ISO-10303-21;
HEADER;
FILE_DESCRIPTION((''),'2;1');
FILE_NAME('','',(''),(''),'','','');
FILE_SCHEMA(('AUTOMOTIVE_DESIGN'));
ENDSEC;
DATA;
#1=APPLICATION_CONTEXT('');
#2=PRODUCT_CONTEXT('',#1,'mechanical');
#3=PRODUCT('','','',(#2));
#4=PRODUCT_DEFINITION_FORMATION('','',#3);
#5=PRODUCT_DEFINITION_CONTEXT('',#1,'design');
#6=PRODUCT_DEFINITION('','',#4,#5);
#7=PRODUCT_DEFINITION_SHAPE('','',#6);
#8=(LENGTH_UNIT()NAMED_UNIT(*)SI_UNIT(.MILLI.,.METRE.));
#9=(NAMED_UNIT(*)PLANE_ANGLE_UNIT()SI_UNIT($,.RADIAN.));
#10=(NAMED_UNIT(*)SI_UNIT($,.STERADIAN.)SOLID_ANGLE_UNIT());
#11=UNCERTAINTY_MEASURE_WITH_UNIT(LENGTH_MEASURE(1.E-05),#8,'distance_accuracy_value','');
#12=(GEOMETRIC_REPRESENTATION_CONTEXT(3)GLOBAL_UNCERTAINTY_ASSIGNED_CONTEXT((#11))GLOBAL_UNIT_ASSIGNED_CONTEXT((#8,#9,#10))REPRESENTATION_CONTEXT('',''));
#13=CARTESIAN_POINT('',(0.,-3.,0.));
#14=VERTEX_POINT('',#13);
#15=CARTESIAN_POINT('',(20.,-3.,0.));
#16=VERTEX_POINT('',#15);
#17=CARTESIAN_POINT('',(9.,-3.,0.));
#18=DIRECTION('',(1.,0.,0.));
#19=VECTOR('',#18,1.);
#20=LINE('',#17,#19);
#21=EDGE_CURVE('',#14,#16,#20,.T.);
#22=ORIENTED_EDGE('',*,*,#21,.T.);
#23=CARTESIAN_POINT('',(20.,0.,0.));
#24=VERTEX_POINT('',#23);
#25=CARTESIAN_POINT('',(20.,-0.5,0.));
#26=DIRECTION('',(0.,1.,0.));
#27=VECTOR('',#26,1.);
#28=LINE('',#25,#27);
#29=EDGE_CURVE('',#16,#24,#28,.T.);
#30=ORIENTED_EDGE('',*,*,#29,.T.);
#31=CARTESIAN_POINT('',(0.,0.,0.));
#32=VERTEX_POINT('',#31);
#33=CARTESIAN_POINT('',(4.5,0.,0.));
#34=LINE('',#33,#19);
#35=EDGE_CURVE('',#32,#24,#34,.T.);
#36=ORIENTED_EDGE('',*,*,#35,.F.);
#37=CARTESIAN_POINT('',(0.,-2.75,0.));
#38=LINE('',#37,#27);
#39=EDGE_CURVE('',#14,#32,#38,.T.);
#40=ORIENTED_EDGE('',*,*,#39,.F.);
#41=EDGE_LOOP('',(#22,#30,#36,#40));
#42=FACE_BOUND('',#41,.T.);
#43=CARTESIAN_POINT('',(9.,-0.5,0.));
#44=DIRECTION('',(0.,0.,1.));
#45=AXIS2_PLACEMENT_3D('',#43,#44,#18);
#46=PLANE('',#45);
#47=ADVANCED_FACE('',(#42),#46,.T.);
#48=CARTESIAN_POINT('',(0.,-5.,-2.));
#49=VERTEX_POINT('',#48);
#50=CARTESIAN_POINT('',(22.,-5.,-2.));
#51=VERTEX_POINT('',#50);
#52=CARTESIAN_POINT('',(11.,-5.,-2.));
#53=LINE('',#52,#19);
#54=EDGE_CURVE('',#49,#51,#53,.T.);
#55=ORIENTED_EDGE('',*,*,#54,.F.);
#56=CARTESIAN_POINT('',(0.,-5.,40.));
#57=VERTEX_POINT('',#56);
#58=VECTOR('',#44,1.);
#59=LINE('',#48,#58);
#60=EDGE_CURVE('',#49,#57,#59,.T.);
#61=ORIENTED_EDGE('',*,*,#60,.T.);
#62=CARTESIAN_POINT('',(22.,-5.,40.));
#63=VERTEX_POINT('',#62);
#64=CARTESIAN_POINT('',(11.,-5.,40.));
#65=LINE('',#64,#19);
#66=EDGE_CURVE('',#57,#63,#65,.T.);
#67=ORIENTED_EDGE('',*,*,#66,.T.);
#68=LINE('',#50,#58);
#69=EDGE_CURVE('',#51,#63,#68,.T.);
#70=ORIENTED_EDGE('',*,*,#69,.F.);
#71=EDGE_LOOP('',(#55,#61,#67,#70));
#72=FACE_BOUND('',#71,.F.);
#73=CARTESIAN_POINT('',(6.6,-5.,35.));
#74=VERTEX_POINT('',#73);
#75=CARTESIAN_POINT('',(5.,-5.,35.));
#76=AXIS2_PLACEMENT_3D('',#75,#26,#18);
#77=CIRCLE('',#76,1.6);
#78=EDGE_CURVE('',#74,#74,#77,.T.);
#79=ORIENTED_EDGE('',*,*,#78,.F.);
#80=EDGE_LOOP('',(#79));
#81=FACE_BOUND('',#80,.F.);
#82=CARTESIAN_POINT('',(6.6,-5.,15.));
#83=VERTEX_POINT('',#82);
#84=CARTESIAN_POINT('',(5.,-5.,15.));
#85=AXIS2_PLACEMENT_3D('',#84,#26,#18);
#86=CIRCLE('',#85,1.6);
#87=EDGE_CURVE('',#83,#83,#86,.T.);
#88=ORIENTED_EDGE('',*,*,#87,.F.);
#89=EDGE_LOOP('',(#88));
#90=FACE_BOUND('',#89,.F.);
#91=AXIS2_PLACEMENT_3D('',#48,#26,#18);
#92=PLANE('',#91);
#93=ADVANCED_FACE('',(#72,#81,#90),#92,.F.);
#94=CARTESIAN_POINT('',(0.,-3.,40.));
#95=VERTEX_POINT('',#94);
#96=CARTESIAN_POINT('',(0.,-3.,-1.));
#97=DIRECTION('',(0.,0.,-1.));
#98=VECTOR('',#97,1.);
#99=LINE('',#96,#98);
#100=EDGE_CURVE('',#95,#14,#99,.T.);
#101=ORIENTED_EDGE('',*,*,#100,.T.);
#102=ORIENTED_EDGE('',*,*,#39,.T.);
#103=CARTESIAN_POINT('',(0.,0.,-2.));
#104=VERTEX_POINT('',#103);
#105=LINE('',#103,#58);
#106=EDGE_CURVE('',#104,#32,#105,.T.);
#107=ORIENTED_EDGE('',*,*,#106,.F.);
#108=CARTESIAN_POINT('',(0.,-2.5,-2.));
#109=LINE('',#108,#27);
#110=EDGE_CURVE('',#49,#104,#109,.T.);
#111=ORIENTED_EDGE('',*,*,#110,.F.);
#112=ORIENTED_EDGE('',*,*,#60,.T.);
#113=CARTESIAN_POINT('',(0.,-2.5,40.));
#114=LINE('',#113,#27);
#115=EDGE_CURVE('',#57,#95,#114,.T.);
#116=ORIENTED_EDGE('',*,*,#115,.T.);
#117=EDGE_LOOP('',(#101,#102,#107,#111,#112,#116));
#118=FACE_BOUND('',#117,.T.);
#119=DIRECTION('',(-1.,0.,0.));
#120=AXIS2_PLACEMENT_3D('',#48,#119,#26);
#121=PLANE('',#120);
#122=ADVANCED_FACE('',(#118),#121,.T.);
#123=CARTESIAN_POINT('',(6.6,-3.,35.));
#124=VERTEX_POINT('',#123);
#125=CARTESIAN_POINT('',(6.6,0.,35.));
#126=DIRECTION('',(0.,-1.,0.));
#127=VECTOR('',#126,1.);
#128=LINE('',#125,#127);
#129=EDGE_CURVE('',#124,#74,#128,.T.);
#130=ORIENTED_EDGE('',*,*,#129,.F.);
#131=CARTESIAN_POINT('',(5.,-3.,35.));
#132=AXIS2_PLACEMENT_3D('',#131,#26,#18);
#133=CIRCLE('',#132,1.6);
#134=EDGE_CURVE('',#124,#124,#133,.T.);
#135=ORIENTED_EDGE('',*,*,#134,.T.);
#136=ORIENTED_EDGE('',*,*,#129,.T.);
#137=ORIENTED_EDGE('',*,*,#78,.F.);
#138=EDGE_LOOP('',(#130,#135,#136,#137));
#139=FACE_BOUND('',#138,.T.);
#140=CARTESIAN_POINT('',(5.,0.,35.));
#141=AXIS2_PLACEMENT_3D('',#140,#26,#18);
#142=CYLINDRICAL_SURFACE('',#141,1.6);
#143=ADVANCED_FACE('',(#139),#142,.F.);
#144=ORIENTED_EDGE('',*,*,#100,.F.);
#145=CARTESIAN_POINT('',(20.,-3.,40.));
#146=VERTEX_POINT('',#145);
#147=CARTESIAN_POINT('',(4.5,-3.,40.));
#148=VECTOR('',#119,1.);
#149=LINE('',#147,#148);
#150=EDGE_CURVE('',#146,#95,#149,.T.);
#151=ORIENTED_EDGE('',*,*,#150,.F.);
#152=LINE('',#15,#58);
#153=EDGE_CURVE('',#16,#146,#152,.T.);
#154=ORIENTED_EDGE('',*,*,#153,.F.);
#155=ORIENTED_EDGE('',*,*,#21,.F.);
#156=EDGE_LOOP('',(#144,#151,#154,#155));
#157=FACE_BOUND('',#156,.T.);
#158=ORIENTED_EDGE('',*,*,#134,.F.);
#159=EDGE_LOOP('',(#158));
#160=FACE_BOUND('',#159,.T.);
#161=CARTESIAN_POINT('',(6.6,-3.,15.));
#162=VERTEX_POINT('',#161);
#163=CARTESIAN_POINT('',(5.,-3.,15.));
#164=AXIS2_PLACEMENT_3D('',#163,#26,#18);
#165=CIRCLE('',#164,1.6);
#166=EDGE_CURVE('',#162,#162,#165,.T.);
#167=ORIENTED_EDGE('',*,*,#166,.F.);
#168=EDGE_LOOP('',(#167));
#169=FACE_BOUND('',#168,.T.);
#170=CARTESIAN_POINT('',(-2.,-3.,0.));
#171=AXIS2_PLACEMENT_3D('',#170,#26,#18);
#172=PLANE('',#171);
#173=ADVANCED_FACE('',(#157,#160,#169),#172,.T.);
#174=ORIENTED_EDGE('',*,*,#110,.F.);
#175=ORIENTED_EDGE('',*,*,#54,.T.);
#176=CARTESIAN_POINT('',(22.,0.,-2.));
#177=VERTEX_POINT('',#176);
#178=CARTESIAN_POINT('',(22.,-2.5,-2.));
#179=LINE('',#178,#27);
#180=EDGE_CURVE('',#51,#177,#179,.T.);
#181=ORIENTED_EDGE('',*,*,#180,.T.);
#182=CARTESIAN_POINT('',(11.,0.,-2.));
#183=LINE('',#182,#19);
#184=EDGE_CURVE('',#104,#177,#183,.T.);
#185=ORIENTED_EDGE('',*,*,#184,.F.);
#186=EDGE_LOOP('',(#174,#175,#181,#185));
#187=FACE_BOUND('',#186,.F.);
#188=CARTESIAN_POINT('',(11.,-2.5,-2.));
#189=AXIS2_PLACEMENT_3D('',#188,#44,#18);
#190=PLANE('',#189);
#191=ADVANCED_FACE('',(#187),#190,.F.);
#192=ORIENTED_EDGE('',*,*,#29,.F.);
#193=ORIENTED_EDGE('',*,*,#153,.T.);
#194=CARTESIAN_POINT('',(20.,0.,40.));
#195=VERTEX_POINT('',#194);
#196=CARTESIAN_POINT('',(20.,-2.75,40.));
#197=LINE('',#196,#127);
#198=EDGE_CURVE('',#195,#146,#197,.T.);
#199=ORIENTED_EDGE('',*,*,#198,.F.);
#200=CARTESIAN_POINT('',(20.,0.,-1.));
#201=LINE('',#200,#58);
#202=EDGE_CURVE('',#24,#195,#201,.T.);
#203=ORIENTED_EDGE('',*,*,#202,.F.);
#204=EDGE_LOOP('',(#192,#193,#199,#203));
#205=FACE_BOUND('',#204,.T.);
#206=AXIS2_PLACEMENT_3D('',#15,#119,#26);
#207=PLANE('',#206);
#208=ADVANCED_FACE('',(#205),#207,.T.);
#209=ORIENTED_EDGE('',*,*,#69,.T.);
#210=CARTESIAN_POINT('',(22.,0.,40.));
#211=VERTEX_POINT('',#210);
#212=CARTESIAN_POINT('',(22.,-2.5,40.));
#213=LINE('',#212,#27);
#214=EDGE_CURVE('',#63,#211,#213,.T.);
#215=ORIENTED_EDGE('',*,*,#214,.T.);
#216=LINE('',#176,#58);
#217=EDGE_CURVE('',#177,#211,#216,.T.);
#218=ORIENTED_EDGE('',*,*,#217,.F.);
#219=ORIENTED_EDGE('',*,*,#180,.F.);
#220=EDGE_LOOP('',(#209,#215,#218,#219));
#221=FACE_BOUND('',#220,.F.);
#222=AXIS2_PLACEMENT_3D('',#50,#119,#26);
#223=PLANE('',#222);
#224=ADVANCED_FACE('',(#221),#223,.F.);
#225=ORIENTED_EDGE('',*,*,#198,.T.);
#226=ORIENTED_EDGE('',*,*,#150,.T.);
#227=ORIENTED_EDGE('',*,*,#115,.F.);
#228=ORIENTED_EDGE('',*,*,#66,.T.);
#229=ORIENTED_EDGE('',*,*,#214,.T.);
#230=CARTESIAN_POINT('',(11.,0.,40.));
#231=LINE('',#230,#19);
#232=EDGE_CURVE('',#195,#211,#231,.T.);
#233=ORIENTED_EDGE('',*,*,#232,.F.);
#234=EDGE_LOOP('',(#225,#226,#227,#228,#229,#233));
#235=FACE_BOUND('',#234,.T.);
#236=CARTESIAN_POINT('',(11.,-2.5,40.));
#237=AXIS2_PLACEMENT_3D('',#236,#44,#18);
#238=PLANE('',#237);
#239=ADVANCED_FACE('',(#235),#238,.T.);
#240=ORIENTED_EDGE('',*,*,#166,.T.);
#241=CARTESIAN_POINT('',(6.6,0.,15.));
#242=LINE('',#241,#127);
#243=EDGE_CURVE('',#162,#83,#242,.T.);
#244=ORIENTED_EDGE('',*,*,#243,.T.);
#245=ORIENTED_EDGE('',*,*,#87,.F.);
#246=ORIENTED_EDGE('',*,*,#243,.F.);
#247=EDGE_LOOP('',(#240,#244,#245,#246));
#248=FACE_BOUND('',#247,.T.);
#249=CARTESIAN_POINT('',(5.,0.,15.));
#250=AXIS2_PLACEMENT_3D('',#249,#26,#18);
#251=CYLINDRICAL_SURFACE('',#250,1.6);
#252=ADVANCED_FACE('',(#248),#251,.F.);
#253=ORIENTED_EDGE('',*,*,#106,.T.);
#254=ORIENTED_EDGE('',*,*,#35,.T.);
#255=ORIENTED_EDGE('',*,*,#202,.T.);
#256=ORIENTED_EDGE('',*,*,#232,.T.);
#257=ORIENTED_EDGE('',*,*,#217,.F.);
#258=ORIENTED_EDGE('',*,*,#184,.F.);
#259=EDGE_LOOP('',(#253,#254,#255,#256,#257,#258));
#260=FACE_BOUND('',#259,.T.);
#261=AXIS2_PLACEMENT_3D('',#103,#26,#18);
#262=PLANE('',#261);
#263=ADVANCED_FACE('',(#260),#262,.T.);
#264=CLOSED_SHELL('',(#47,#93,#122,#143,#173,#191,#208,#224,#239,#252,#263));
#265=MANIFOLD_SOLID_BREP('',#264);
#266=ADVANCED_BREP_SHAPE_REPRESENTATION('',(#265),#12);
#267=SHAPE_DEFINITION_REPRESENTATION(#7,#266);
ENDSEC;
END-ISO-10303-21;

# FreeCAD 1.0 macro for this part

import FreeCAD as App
import Part
import Sketcher

V = App.Vector
Q = App.Units.Quantity


def add_polygon(sketch, points):
    """Adds a closed chain of lines whose ends are joined by coincident constraints."""
    first, n = sketch.GeometryCount, len(points)
    for a, b in zip(points, points[1:] + points[:1]):
        sketch.addGeometry(Part.LineSegment(App.Vector(*a, 0), App.Vector(*b, 0)), False)
    for i in range(n):
        sketch.addConstraint(Sketcher.Constraint("Coincident", first + i, 2, first + (i + 1) % n, 1))

doc = App.newDocument("Part")
body = doc.addObject("PartDesign::Body", "Body")

# Sketch on XZ plane
sketch1 = body.newObject("Sketcher::SketchObject", "Sketch")
sketch1.AttachmentSupport = (doc.getObject("XZ_Plane"), [""])
sketch1.MapMode = "FlatFace"
sketch1.addGeometry(Part.Circle(V(5, 10, 0), V(0, 0, 1), 1.6), False)
sketch1.addConstraint([
    Sketcher.Constraint("Diameter", 0, Q("3.2 mm")),
    Sketcher.Constraint("DistanceX", -1, 1, 0, 3, Q("5 mm")),
    Sketcher.Constraint("DistanceY", -1, 1, 0, 3, Q("10 mm")),
])
pad1 = body.newObject("PartDesign::Pad", "Pad")
pad1.Profile = sketch1
pad1.Length = 10
body2 = doc.addObject("PartDesign::Body", "Body001")
body2.AllowCompound = True

# Sketch on XZ plane
sketch2 = body2.newObject("Sketcher::SketchObject", "Sketch001")
sketch2.AttachmentSupport = (doc.getObject("XZ_Plane001"), [""])
sketch2.MapMode = "FlatFace"
sketch2.addGeometry(Part.Circle(V(5, 30, 0), V(0, 0, 1), 1.6), False)
sketch2.addConstraint([
    Sketcher.Constraint("Diameter", 0, Q("3.2 mm")),
    Sketcher.Constraint("DistanceX", -1, 1, 0, 3, Q("5 mm")),
    Sketcher.Constraint("DistanceY", -1, 1, 0, 3, Q("30 mm")),
])
pad2 = body2.newObject("PartDesign::Pad", "Pad001")
pad2.Profile = sketch2
pad2.Length = 10
doc.recompute()

boolean = body2.newObject("PartDesign::Boolean", "Boolean")
boolean.Type = "Fuse"
boolean.addObjects([body])
body3 = doc.addObject("PartDesign::Body", "Body002")
body3.AllowCompound = True
doc.recompute()

body2.Placement = App.Placement(V(0, 0, 5), App.Rotation(V(0, 0, 1), 0))
boolean2 = body3.newObject("PartDesign::Boolean", "Boolean001")
boolean2.Type = "Fuse"
boolean2.addObjects([body2])
body4 = doc.addObject("PartDesign::Body", "Body003")

# Sketch on XY plane
sketch3 = body4.newObject("Sketcher::SketchObject", "Sketch002")
sketch3.AttachmentSupport = (doc.getObject("XY_Plane003"), [""])
sketch3.MapMode = "FlatFace"
add_polygon(sketch3, [(-2, 2), (-2, -3), (20, -3), (20, 2)])  # lines 0-3
sketch3.addConstraint([
    Sketcher.Constraint("Vertical", 0),
    Sketcher.Constraint("Horizontal", 1),
    Sketcher.Constraint("Vertical", 2),
    Sketcher.Constraint("Horizontal", 3),
    Sketcher.Constraint("DistanceX", 1, 1, 1, 2, Q("22 mm")),
    Sketcher.Constraint("DistanceY", 0, 2, 0, 1, Q("5 mm")),
    Sketcher.Constraint("DistanceX", 0, 2, -1, 1, Q("2 mm")),
    Sketcher.Constraint("DistanceY", 0, 2, -1, 1, Q("3 mm")),
])
pad3 = body4.newObject("PartDesign::Pad", "Pad002")
pad3.Profile = sketch3
pad3.Length = 42
body5 = doc.addObject("PartDesign::Body", "Body004")

# Sketch on XY plane
sketch4 = body5.newObject("Sketcher::SketchObject", "Sketch003")
sketch4.AttachmentSupport = (doc.getObject("XY_Plane004"), [""])
sketch4.MapMode = "FlatFace"
sketch4.AttachmentOffset = App.Placement(V(0, 0, -2), App.Rotation())
add_polygon(sketch4, [(0, 0), (0, -5), (22, -5), (22, 0)])  # lines 0-3
sketch4.addConstraint([
    Sketcher.Constraint("Vertical", 0),
    Sketcher.Constraint("Horizontal", 1),
    Sketcher.Constraint("Vertical", 2),
    Sketcher.Constraint("Horizontal", 3),
    Sketcher.Constraint("Coincident", 3, 2, -1, 1),
    Sketcher.Constraint("DistanceX", 1, 1, 1, 2, Q("22 mm")),
    Sketcher.Constraint("DistanceY", 0, 2, 0, 1, Q("5 mm")),
])
pad4 = body5.newObject("PartDesign::Pad", "Pad003")
pad4.Profile = sketch4
pad4.Length = 42
doc.recompute()

boolean3 = body5.newObject("PartDesign::Boolean", "Boolean002")
boolean3.Type = "Cut"
boolean3.addObjects([body4])
doc.recompute()

boolean4 = body5.newObject("PartDesign::Boolean", "Boolean003")
boolean4.Type = "Cut"
boolean4.addObjects([body3])

doc.recompute()
